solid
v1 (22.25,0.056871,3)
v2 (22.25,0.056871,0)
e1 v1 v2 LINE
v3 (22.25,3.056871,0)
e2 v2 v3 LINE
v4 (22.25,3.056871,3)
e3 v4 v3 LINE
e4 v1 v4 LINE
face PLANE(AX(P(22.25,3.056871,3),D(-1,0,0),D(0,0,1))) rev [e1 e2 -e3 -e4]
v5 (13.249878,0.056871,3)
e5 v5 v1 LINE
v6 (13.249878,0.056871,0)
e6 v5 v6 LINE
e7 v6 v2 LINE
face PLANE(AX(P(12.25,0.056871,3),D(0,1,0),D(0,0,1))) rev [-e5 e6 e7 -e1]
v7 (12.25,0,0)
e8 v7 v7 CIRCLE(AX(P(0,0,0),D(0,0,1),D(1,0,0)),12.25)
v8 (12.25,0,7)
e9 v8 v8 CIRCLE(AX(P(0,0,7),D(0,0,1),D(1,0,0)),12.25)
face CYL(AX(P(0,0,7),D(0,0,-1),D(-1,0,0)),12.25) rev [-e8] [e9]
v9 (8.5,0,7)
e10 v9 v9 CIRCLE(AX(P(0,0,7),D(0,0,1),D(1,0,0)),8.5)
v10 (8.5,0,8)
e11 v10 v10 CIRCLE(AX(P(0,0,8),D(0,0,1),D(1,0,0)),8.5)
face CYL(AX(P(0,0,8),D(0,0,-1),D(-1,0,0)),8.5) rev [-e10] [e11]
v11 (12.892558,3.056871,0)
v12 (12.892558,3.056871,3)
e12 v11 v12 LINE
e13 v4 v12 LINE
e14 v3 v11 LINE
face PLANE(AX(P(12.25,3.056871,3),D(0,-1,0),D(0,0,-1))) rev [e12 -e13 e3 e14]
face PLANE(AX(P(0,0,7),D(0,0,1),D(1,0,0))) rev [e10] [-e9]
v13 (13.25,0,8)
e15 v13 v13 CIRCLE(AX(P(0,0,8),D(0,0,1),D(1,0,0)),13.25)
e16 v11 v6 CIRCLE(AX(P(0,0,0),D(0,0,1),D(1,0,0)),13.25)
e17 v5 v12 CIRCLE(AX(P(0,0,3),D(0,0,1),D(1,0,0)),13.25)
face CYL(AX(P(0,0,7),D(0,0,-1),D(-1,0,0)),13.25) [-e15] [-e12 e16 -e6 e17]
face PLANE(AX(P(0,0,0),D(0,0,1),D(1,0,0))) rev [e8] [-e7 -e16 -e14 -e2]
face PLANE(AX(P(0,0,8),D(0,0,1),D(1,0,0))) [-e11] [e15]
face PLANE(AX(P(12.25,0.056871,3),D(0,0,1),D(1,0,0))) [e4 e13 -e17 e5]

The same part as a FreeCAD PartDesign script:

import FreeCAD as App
import Part
import Sketcher
from FreeCAD import Vector

doc = App.newDocument("Part")
body = doc.addObject("PartDesign::Body", "Body")

# Sketch on XY plane
sketch1 = body.newObject("Sketcher::SketchObject", "Sketch")
sketch1.AttachmentSupport = (doc.getObject("XY_Plane"), [""])
sketch1.MapMode = "FlatFace"
sketch1.addGeometry([
    Part.Circle(Vector(0, 0, 0), Vector(0, 0, 1), 13),
    Part.Circle(Vector(0, 0, 0), Vector(0, 0, 1), 12),
], False)
sketch1.addConstraint([
    Sketcher.Constraint("Coincident", 0, 3, -1, 1),
    Sketcher.Constraint("Coincident", 1, 3, -1, 1),
    Sketcher.Constraint("Diameter", 0, 26.5),
    Sketcher.Constraint("Diameter", 1, 24.5),
])
pad1 = body.newObject("PartDesign::Pad", "Pad")
pad1.Profile = sketch1
pad1.Length = 7

# Sketch on XY plane
sketch2 = body.newObject("Sketcher::SketchObject", "Sketch001")
sketch2.AttachmentSupport = (doc.getObject("XY_Plane"), [""])
sketch2.MapMode = "FlatFace"
sketch2.AttachmentOffset = App.Placement(Vector(0, 0, 7), App.Rotation())
sketch2.addGeometry([
    Part.Circle(Vector(0, 0, 0), Vector(0, 0, 1), 13),
    Part.Circle(Vector(0, 0, 0), Vector(0, 0, 1), 8),
], False)
sketch2.addConstraint([
    Sketcher.Constraint("Coincident", 0, 3, -1, 1),
    Sketcher.Constraint("Coincident", 1, 3, -1, 1),
    Sketcher.Constraint("Diameter", 1, 17.0),
    Sketcher.Constraint("Diameter", 0, 26.5),
])
pad2 = body.newObject("PartDesign::Pad", "Pad001")
pad2.Profile = sketch2
pad2.Length = 1

# Sketch on XY plane
sketch3 = body.newObject("Sketcher::SketchObject", "Sketch002")
sketch3.AttachmentSupport = (doc.getObject("XY_Plane"), [""])
sketch3.MapMode = "FlatFace"
sketch3.addGeometry([
    Part.LineSegment(Vector(12.2, 3.1, 0), Vector(12.2, 0.1, 0)),
    Part.LineSegment(Vector(12.2, 0.1, 0), Vector(22.2, 0.1, 0)),
    Part.LineSegment(Vector(22.2, 0.1, 0), Vector(22.2, 3.1, 0)),
    Part.LineSegment(Vector(22.2, 3.1, 0), Vector(12.2, 3.1, 0)),
], False)
sketch3.addConstraint([
    Sketcher.Constraint("Coincident", 0, 2, 1, 1),
    Sketcher.Constraint("Coincident", 1, 2, 2, 1),
    Sketcher.Constraint("Coincident", 2, 2, 3, 1),
    Sketcher.Constraint("Coincident", 3, 2, 0, 1),
    Sketcher.Constraint("Vertical", 0),
    Sketcher.Constraint("Horizontal", 1),
    Sketcher.Constraint("Vertical", 2),
    Sketcher.Constraint("Horizontal", 3),
    Sketcher.Constraint("DistanceX", 1, 1, 1, 2, 10.0),
    Sketcher.Constraint("DistanceY", 0, 2, 0, 1, 3.0),
    Sketcher.Constraint("DistanceX", -1, 1, 0, 2, 12.25),
    Sketcher.Constraint("DistanceY", -1, 1, 0, 2, 0.056871),
])
pad3 = body.newObject("PartDesign::Pad", "Pad002")
pad3.Profile = sketch3
pad3.Length = 3

doc.recompute()
